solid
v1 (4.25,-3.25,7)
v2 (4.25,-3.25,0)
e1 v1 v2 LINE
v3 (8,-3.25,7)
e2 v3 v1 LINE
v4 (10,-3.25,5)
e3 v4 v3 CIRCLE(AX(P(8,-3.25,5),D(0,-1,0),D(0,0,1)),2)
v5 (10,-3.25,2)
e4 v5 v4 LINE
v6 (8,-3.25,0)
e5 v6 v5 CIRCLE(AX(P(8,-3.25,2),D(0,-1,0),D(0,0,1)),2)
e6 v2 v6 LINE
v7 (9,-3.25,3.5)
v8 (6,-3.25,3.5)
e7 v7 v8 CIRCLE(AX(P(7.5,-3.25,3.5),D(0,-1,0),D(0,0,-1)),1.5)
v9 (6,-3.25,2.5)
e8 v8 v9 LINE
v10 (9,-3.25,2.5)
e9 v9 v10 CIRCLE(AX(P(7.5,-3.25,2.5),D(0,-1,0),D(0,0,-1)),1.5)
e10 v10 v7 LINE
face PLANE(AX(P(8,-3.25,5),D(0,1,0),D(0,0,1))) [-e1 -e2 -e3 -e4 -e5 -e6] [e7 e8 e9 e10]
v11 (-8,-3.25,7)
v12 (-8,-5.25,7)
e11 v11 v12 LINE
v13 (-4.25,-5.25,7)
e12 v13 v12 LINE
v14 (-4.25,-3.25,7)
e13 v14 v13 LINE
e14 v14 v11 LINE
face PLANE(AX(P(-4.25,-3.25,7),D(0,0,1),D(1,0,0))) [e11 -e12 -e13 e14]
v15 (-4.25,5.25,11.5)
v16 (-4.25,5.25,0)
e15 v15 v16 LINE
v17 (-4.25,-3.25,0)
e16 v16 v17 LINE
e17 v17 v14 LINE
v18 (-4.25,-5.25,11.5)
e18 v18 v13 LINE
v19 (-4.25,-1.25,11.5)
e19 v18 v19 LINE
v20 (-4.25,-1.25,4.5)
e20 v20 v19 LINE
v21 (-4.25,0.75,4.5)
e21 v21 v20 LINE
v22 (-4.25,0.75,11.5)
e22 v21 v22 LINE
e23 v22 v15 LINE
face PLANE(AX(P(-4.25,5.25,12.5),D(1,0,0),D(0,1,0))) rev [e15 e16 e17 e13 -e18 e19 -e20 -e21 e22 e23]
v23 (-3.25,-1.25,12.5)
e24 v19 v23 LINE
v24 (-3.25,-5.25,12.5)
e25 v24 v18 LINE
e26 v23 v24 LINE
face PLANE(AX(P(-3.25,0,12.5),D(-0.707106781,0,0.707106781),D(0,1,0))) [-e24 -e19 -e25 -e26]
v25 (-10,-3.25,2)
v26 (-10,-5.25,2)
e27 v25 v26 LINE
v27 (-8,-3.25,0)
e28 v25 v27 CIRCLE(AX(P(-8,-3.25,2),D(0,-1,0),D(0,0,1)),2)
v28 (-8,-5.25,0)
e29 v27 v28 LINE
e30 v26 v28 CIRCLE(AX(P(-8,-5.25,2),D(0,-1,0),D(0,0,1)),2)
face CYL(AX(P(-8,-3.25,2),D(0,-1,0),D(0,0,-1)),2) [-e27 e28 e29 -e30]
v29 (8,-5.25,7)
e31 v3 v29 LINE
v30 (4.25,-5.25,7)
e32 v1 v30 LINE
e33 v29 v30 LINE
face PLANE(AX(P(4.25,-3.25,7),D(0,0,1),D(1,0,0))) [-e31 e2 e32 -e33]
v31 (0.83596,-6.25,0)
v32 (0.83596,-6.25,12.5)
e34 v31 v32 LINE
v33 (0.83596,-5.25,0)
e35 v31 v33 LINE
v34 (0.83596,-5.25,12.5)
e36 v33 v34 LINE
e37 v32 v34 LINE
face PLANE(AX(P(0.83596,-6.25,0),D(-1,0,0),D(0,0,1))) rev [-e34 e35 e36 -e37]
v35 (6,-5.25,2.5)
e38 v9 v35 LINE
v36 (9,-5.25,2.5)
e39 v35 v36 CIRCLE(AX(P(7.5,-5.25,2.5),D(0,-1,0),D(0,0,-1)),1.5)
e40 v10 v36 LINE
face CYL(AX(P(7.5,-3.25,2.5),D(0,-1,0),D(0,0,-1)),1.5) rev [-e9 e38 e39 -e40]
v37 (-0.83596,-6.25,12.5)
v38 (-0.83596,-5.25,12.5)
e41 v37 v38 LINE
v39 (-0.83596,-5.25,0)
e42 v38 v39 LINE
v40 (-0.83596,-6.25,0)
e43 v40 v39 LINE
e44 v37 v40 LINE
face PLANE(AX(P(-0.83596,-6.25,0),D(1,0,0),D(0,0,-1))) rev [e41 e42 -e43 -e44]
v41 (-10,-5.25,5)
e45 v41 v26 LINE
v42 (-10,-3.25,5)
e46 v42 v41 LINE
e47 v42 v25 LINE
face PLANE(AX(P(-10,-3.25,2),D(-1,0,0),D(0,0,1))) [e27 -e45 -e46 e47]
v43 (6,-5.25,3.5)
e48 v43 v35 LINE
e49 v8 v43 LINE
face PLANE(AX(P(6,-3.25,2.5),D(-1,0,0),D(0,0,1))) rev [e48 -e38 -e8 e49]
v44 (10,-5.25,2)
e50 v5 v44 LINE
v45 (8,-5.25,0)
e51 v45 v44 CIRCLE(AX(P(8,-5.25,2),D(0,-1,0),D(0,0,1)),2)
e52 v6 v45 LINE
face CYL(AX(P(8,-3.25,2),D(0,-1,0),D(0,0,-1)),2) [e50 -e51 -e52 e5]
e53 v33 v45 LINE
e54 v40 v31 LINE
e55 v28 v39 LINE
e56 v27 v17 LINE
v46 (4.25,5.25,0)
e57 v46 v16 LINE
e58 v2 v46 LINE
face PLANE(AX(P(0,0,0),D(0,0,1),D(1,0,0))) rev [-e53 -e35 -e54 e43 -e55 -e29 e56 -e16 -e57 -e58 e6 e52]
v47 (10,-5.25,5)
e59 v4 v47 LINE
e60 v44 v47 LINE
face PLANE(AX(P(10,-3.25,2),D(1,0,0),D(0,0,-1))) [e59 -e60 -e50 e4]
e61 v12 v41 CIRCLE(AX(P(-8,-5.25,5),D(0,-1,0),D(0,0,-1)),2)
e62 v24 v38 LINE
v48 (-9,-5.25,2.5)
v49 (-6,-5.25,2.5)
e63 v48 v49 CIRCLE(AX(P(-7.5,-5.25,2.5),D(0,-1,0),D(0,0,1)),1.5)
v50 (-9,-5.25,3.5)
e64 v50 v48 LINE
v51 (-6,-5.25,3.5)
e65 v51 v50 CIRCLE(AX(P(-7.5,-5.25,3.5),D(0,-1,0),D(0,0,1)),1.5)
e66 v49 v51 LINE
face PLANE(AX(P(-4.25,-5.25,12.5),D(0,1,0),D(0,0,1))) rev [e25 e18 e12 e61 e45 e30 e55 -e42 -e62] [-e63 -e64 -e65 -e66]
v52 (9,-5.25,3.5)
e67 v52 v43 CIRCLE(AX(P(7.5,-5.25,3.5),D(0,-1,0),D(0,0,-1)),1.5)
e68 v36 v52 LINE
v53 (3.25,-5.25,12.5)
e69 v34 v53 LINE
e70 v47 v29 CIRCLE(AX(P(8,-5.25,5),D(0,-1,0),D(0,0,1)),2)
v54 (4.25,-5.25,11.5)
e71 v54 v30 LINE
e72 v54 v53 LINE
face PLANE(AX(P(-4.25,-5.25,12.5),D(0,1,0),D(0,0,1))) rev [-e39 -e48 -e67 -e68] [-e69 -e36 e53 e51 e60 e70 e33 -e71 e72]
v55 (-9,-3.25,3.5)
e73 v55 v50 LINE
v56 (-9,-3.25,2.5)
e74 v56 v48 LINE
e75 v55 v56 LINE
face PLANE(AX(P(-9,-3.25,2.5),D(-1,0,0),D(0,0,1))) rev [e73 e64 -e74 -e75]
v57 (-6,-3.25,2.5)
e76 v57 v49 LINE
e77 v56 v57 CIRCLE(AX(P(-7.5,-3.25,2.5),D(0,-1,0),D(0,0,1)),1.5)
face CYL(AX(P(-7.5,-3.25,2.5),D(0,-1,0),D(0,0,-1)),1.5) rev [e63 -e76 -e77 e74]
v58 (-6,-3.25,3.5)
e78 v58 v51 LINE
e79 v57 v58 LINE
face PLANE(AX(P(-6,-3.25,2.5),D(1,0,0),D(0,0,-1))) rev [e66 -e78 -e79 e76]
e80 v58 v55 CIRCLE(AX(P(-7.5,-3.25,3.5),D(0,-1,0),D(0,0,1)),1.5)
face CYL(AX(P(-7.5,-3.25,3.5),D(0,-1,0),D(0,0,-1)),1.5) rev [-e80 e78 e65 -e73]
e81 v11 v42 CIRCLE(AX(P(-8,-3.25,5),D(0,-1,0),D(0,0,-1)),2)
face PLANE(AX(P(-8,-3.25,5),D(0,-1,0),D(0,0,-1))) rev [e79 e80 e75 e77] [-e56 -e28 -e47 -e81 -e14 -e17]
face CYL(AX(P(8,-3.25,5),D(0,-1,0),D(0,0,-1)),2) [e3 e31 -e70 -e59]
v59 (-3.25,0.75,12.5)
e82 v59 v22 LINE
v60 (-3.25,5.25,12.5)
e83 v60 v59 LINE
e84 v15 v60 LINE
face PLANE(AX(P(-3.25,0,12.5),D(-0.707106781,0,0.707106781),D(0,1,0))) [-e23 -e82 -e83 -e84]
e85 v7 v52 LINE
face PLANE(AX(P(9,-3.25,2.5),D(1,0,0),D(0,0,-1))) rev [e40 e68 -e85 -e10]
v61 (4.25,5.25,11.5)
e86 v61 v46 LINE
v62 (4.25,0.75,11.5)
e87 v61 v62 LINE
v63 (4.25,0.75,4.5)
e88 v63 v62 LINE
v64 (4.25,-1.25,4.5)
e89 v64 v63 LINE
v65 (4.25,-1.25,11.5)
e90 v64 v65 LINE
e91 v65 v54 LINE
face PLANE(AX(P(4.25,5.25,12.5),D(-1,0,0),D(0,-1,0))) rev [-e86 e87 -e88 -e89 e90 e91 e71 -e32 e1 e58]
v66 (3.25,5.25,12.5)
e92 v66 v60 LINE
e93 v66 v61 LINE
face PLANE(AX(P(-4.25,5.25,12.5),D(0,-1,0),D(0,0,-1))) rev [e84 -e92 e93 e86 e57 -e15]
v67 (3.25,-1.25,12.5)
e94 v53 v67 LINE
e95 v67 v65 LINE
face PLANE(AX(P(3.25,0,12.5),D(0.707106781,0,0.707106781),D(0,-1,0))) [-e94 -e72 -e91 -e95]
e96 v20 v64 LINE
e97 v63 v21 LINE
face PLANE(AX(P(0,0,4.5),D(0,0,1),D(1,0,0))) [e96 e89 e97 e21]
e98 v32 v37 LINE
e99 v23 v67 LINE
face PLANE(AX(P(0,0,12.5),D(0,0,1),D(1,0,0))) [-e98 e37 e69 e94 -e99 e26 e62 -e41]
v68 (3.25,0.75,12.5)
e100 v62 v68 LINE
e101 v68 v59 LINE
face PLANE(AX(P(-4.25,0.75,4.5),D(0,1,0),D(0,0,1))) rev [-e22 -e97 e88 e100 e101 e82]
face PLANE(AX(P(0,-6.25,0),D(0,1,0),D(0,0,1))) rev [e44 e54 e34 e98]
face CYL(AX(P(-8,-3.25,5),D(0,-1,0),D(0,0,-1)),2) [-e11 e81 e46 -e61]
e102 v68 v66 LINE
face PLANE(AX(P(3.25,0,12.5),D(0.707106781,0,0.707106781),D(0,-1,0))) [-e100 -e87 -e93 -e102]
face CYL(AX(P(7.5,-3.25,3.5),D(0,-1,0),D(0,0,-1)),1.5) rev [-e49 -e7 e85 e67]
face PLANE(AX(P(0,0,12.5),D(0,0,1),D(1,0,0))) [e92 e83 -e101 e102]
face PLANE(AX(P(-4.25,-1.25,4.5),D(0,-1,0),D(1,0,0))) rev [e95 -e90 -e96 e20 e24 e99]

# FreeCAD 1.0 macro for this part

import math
import FreeCAD as App
import Part
import Sketcher

V = App.Vector
Q = App.Units.Quantity


def edges_at(feature, points):
    """Names of the edges that pass closest to the given points."""
    edges = feature.Shape.Edges
    near = lambda p: min(range(len(edges)), key=lambda i: edges[i].distToShape(Part.Vertex(*p))[0])
    return sorted({f"Edge{near(p) + 1}" for p in points})

doc = App.newDocument("Part")
params = doc.addObject("Spreadsheet::Sheet", "Params")
for row, (alias, value) in enumerate([
    ("sketch1_width", "8.5 mm"),
    ("sketch1_height", "10.5 mm"),
    ("pad1_length", "12.5 mm"),
    ("sketch2_height", "2 mm"),
    ("sketch2_width", "8.5 mm"),
    ("pocket1_length", "8 mm"),
    ("sketch3_radius", "2 mm"),
    ("sketch3_radius2", "1.5 mm"),
    ("sketch3_height", "3 mm"),
    ("sketch3_height2", "1 mm"),
    ("sketch3_width", "3.75 mm"),
    ("pad2_length", "2 mm"),
    ("chamfer_size", "1 mm"),
    ("sketch4_height", "12.5 mm"),
    ("pad3_length", "1 mm"),
], start=1):
    params.set(f"A{row}", alias)
    params.set(f"B{row}", "=" + value)
    params.setAlias(f"B{row}", alias)

body = doc.addObject("PartDesign::Body", "Body")

# Sketch on XY plane
sketch1 = body.newObject("Sketcher::SketchObject", "Sketch")
sketch1.AttachmentSupport = (doc.getObject("XY_Plane"), [""])
sketch1.MapMode = "FlatFace"
sketch1.addGeometry(Part.LineSegment(V(-4, 5, 0), V(-4, -5, 0)), False)
sketch1.addGeometry(Part.LineSegment(V(-4, -5, 0), V(4, -5, 0)), False)
sketch1.addGeometry(Part.LineSegment(V(4, -5, 0), V(4, 5, 0)), False)
sketch1.addGeometry(Part.LineSegment(V(4, 5, 0), V(-4, 5, 0)), False)
sketch1.addConstraint(Sketcher.Constraint("Coincident", 0, 2, 1, 1))
sketch1.addConstraint(Sketcher.Constraint("Coincident", 1, 2, 2, 1))
sketch1.addConstraint(Sketcher.Constraint("Coincident", 2, 2, 3, 1))
sketch1.addConstraint(Sketcher.Constraint("Coincident", 3, 2, 0, 1))
sketch1.addConstraint(Sketcher.Constraint("Vertical", 0))
sketch1.addConstraint(Sketcher.Constraint("Horizontal", 1))
sketch1.addConstraint(Sketcher.Constraint("Vertical", 2))
sketch1.addConstraint(Sketcher.Constraint("Horizontal", 3))
sketch1.addConstraint(Sketcher.Constraint("Symmetric", 0, 2, 2, 2, -1, 1))
sketch1.addConstraint(Sketcher.Constraint("DistanceX", 1, 1, 1, 2, Q("8.5 mm")))
sketch1.addConstraint(Sketcher.Constraint("DistanceY", 0, 2, 0, 1, Q("10.5 mm")))
sketch1.setExpression("Constraints[9]", "Params.sketch1_width")
sketch1.setExpression("Constraints[10]", "Params.sketch1_height")
pad1 = body.newObject("PartDesign::Pad", "Pad")
pad1.Profile = sketch1
pad1.setExpression("Length", "Params.pad1_length")

# Sketch on XY plane
sketch2 = body.newObject("Sketcher::SketchObject", "Sketch001")
sketch2.AttachmentSupport = (doc.getObject("XY_Plane"), [""])
sketch2.MapMode = "FlatFace"
sketch2.AttachmentOffset = App.Placement(V(0, 0, 12.5), App.Rotation())
sketch2.addGeometry(Part.LineSegment(V(-4.2, 0.8, 0), V(-4.2, -1.2, 0)), False)
sketch2.addGeometry(Part.LineSegment(V(-4.2, -1.2, 0), V(4.2, -1.2, 0)), False)
sketch2.addGeometry(Part.LineSegment(V(4.2, -1.2, 0), V(4.2, 0.8, 0)), False)
sketch2.addGeometry(Part.LineSegment(V(4.2, 0.8, 0), V(-4.2, 0.8, 0)), False)
sketch2.addConstraint(Sketcher.Constraint("Coincident", 0, 2, 1, 1))
sketch2.addConstraint(Sketcher.Constraint("Coincident", 1, 2, 2, 1))
sketch2.addConstraint(Sketcher.Constraint("Coincident", 2, 2, 3, 1))
sketch2.addConstraint(Sketcher.Constraint("Coincident", 3, 2, 0, 1))
sketch2.addConstraint(Sketcher.Constraint("Vertical", 0))
sketch2.addConstraint(Sketcher.Constraint("Horizontal", 1))
sketch2.addConstraint(Sketcher.Constraint("Vertical", 2))
sketch2.addConstraint(Sketcher.Constraint("Horizontal", 3))
sketch2.addConstraint(Sketcher.Constraint("DistanceY", 0, 2, 0, 1, Q("2 mm")))
sketch2.addConstraint(Sketcher.Constraint("DistanceX", 1, 1, 1, 2, Q("8.5 mm")))
sketch2.addConstraint(Sketcher.Constraint("DistanceX", 0, 2, -1, 1, Q("4.25 mm")))
sketch2.addConstraint(Sketcher.Constraint("DistanceY", 0, 2, -1, 1, Q("1.25 mm")))
sketch2.setExpression("Constraints[8]", "Params.sketch2_height")
sketch2.setExpression("Constraints[9]", "Params.sketch2_width")
pocket1 = body.newObject("PartDesign::Pocket", "Pocket")
pocket1.Profile = sketch2
pocket1.setExpression("Length", "Params.pocket1_length")

# Sketch on XZ plane
sketch3 = body.newObject("Sketcher::SketchObject", "Sketch002")
sketch3.AttachmentSupport = (doc.getObject("XZ_Plane"), [""])
sketch3.MapMode = "FlatFace"
sketch3.AttachmentOffset = App.Placement(V(0, 0, 5.25), App.Rotation())
sketch3.addGeometry(Part.LineSegment(V(4.2, 0, 0), V(8, 0, 0)), False)
sketch3.addGeometry(Part.ArcOfCircle(Part.Circle(V(8, 2, 0), V(0, 0, 1), 2), math.radians(-90), math.radians(0)), False)
sketch3.addGeometry(Part.LineSegment(V(10, 2, 0), V(10, 5, 0)), False)
sketch3.addGeometry(Part.ArcOfCircle(Part.Circle(V(8, 5, 0), V(0, 0, 1), 2), math.radians(0), math.radians(90)), False)
sketch3.addGeometry(Part.LineSegment(V(8, 7, 0), V(4.2, 7, 0)), False)
sketch3.addGeometry(Part.LineSegment(V(4.2, 7, 0), V(4.2, 0, 0)), False)
sketch3.addGeometry(Part.ArcOfCircle(Part.Circle(V(7.5, 2.5, 0), V(0, 0, 1), 1.5), math.radians(180), math.radians(360)), False)
sketch3.addGeometry(Part.LineSegment(V(6, 2.5, 0), V(6, 3.5, 0)), False)
sketch3.addGeometry(Part.ArcOfCircle(Part.Circle(V(7.5, 3.5, 0), V(0, 0, 1), 1.5), math.radians(0), math.radians(180)), False)
sketch3.addGeometry(Part.LineSegment(V(9, 3.5, 0), V(9, 2.5, 0)), False)
sketch3.addGeometry(Part.LineSegment(V(-10, 5, 0), V(-10, 2, 0)), False)
sketch3.addGeometry(Part.ArcOfCircle(Part.Circle(V(-8, 2, 0), V(0, 0, 1), 2), math.radians(-180), math.radians(-90)), False)
sketch3.addGeometry(Part.LineSegment(V(-8, 0, 0), V(-4.2, 0, 0)), False)
sketch3.addGeometry(Part.LineSegment(V(-4.2, 0, 0), V(-4.2, 7, 0)), False)
sketch3.addGeometry(Part.LineSegment(V(-4.2, 7, 0), V(-8, 7, 0)), False)
sketch3.addGeometry(Part.ArcOfCircle(Part.Circle(V(-8, 5, 0), V(0, 0, 1), 2), math.radians(90), math.radians(180)), False)
sketch3.addGeometry(Part.ArcOfCircle(Part.Circle(V(-7.5, 2.5, 0), V(0, 0, 1), 1.5), math.radians(180), math.radians(360)), False)
sketch3.addGeometry(Part.LineSegment(V(-9, 2.5, 0), V(-9, 3.5, 0)), False)
sketch3.addGeometry(Part.ArcOfCircle(Part.Circle(V(-7.5, 3.5, 0), V(0, 0, 1), 1.5), math.radians(0), math.radians(180)), False)
sketch3.addGeometry(Part.LineSegment(V(-6, 3.5, 0), V(-6, 2.5, 0)), False)
sketch3.addConstraint(Sketcher.Constraint("Tangent", 0, 2, 1, 1))
sketch3.addConstraint(Sketcher.Constraint("Tangent", 1, 2, 2, 1))
sketch3.addConstraint(Sketcher.Constraint("Tangent", 2, 2, 3, 1))
sketch3.addConstraint(Sketcher.Constraint("Tangent", 3, 2, 4, 1))
sketch3.addConstraint(Sketcher.Constraint("Coincident", 4, 2, 5, 1))
sketch3.addConstraint(Sketcher.Constraint("Coincident", 5, 2, 0, 1))
sketch3.addConstraint(Sketcher.Constraint("Tangent", 6, 1, 7, 1))
sketch3.addConstraint(Sketcher.Constraint("Tangent", 7, 2, 8, 2))
sketch3.addConstraint(Sketcher.Constraint("Tangent", 8, 1, 9, 1))
sketch3.addConstraint(Sketcher.Constraint("Tangent", 9, 2, 6, 2))
sketch3.addConstraint(Sketcher.Constraint("Tangent", 10, 2, 11, 1))
sketch3.addConstraint(Sketcher.Constraint("Tangent", 11, 2, 12, 1))
sketch3.addConstraint(Sketcher.Constraint("Coincident", 12, 2, 13, 1))
sketch3.addConstraint(Sketcher.Constraint("Coincident", 13, 2, 14, 1))
sketch3.addConstraint(Sketcher.Constraint("Tangent", 14, 2, 15, 1))
sketch3.addConstraint(Sketcher.Constraint("Tangent", 15, 2, 10, 1))
sketch3.addConstraint(Sketcher.Constraint("Tangent", 16, 1, 17, 1))
sketch3.addConstraint(Sketcher.Constraint("Tangent", 17, 2, 18, 2))
sketch3.addConstraint(Sketcher.Constraint("Tangent", 18, 1, 19, 1))
sketch3.addConstraint(Sketcher.Constraint("Tangent", 19, 2, 16, 2))
sketch3.addConstraint(Sketcher.Constraint("Horizontal", 0))
sketch3.addConstraint(Sketcher.Constraint("Vertical", 2))
sketch3.addConstraint(Sketcher.Constraint("Horizontal", 4))
sketch3.addConstraint(Sketcher.Constraint("Vertical", 5))
sketch3.addConstraint(Sketcher.Constraint("Vertical", 7))
sketch3.addConstraint(Sketcher.Constraint("Vertical", 9))
sketch3.addConstraint(Sketcher.Constraint("Vertical", 10))
sketch3.addConstraint(Sketcher.Constraint("Horizontal", 12))
sketch3.addConstraint(Sketcher.Constraint("Vertical", 13))
sketch3.addConstraint(Sketcher.Constraint("Horizontal", 14))
sketch3.addConstraint(Sketcher.Constraint("Vertical", 17))
sketch3.addConstraint(Sketcher.Constraint("Vertical", 19))
sketch3.addConstraint(Sketcher.Constraint("Equal", 1, 3))
sketch3.addConstraint(Sketcher.Constraint("Equal", 3, 11))
sketch3.addConstraint(Sketcher.Constraint("Equal", 11, 15))
sketch3.addConstraint(Sketcher.Constraint("Equal", 8, 16))
sketch3.addConstraint(Sketcher.Constraint("Symmetric", 0, 2, 11, 2, -1, 1))
sketch3.addConstraint(Sketcher.Constraint("Symmetric", 6, 3, 16, 3, -2))
sketch3.addConstraint(Sketcher.Constraint("Symmetric", 5, 2, 12, 2, -2))
sketch3.addConstraint(Sketcher.Constraint("Horizontal", 3, 3, 15, 3))
sketch3.addConstraint(Sketcher.Constraint("Horizontal", 8, 3, 18, 3))
sketch3.addConstraint(Sketcher.Constraint("Radius", 1, Q("2 mm")))
sketch3.addConstraint(Sketcher.Constraint("Radius", 6, Q("1.5 mm")))
sketch3.addConstraint(Sketcher.Constraint("DistanceY", 2, 1, 2, 2, Q("3 mm")))
sketch3.addConstraint(Sketcher.Constraint("DistanceY", 7, 1, 7, 2, Q("1 mm")))
sketch3.addConstraint(Sketcher.Constraint("DistanceX", -1, 1, 1, 3, Q("8 mm")))
sketch3.addConstraint(Sketcher.Constraint("DistanceX", -1, 1, 6, 1, Q("6 mm")))
sketch3.addConstraint(Sketcher.Constraint("DistanceX", 0, 1, 0, 2, Q("3.75 mm")))
sketch3.addConstraint(Sketcher.Constraint("DistanceY", -1, 1, 6, 3, Q("2.5 mm")))
sketch3.setExpression("Constraints[41]", "Params.sketch3_radius")
sketch3.setExpression("Constraints[42]", "Params.sketch3_radius2")
sketch3.setExpression("Constraints[43]", "Params.sketch3_height")
sketch3.setExpression("Constraints[44]", "Params.sketch3_height2")
sketch3.setExpression("Constraints[47]", "Params.sketch3_width")
pad2 = body.newObject("PartDesign::Pad", "Pad001")
pad2.Profile = sketch3
pad2.setExpression("Length", "Params.pad2_length")
pad2.Reversed = True
doc.recompute()

chamfer = body.newObject("PartDesign::Chamfer", "Chamfer")
chamfer.Base = (pad2, edges_at(pad2, [
    (-4.25, 3, 12.5),
    (4.25, 3, 12.5),
    (-4.25, -3.25, 12.5),
    (4.25, -3.25, 12.5),
]))
chamfer.setExpression("Size", "Params.chamfer_size")

# Sketch on XZ plane
sketch4 = body.newObject("Sketcher::SketchObject", "Sketch003")
sketch4.AttachmentSupport = (doc.getObject("XZ_Plane"), [""])
sketch4.MapMode = "FlatFace"
sketch4.AttachmentOffset = App.Placement(V(0, 0, 5.25), App.Rotation())
sketch4.addGeometry(Part.LineSegment(V(-0.8, 12.5, 0), V(-0.8, 0, 0)), False)
sketch4.addGeometry(Part.LineSegment(V(-0.8, 0, 0), V(0.8, 0, 0)), False)
sketch4.addGeometry(Part.LineSegment(V(0.8, 0, 0), V(0.8, 12.5, 0)), False)
sketch4.addGeometry(Part.LineSegment(V(0.8, 12.5, 0), V(-0.8, 12.5, 0)), False)
sketch4.addConstraint(Sketcher.Constraint("Coincident", 0, 2, 1, 1))
sketch4.addConstraint(Sketcher.Constraint("Coincident", 1, 2, 2, 1))
sketch4.addConstraint(Sketcher.Constraint("Coincident", 2, 2, 3, 1))
sketch4.addConstraint(Sketcher.Constraint("Coincident", 3, 2, 0, 1))
sketch4.addConstraint(Sketcher.Constraint("Vertical", 0))
sketch4.addConstraint(Sketcher.Constraint("Horizontal", 1))
sketch4.addConstraint(Sketcher.Constraint("Vertical", 2))
sketch4.addConstraint(Sketcher.Constraint("Horizontal", 3))
sketch4.addConstraint(Sketcher.Constraint("Symmetric", 0, 2, 1, 2, -1, 1))
sketch4.addConstraint(Sketcher.Constraint("DistanceY", 0, 2, 0, 1, Q("12.5 mm")))
sketch4.addConstraint(Sketcher.Constraint("DistanceX", 1, 1, 1, 2, Q("1.671921 mm")))
sketch4.setExpression("Constraints[9]", "Params.sketch4_height")
pad3 = body.newObject("PartDesign::Pad", "Pad002")
pad3.Profile = sketch4
pad3.setExpression("Length", "Params.pad3_length")

doc.recompute()
